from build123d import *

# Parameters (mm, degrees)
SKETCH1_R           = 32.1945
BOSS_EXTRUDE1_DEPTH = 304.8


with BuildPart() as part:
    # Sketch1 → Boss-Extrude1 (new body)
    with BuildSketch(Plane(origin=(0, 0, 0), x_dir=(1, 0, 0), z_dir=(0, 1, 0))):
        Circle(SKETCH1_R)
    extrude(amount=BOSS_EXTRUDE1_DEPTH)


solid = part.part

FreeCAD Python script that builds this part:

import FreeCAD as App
import Part
import Sketcher
Q = App.Units.Quantity

doc = App.newDocument("Part")
params = doc.addObject("Spreadsheet::Sheet", "Params")
for row, (alias, value) in enumerate([
    ("sketch1_diameter", "2.535 in"),
    ("pad1_length", "12 in"),
], start=1):
    params.set(f"A{row}", alias)
    params.set(f"B{row}", "=" + value)
    params.setAlias(f"B{row}", alias)

body = doc.addObject("PartDesign::Body", "Body")

sketch1 = body.newObject("Sketcher::SketchObject", "Sketch")
sketch1.AttachmentSupport = (doc.getObject("XZ_Plane"), [""])
sketch1.MapMode = "FlatFace"
sketch1.addGeometry(Part.Circle(App.Vector(0, 0, 0), App.Vector(0, 0, 1), 32.1945), False)
sketch1.addConstraint([
    Sketcher.Constraint("Coincident", 0, 3, -1, 1),
    Sketcher.Constraint("Diameter", 0, Q("2.535 in")),
])
sketch1.setExpression("Constraints[1]", "Params.sketch1_diameter")
pad1 = body.newObject("PartDesign::Pad", "Pad")
pad1.Profile = sketch1
pad1.setExpression("Length", "Params.pad1_length")
pad1.Reversed = True

doc.recompute()
